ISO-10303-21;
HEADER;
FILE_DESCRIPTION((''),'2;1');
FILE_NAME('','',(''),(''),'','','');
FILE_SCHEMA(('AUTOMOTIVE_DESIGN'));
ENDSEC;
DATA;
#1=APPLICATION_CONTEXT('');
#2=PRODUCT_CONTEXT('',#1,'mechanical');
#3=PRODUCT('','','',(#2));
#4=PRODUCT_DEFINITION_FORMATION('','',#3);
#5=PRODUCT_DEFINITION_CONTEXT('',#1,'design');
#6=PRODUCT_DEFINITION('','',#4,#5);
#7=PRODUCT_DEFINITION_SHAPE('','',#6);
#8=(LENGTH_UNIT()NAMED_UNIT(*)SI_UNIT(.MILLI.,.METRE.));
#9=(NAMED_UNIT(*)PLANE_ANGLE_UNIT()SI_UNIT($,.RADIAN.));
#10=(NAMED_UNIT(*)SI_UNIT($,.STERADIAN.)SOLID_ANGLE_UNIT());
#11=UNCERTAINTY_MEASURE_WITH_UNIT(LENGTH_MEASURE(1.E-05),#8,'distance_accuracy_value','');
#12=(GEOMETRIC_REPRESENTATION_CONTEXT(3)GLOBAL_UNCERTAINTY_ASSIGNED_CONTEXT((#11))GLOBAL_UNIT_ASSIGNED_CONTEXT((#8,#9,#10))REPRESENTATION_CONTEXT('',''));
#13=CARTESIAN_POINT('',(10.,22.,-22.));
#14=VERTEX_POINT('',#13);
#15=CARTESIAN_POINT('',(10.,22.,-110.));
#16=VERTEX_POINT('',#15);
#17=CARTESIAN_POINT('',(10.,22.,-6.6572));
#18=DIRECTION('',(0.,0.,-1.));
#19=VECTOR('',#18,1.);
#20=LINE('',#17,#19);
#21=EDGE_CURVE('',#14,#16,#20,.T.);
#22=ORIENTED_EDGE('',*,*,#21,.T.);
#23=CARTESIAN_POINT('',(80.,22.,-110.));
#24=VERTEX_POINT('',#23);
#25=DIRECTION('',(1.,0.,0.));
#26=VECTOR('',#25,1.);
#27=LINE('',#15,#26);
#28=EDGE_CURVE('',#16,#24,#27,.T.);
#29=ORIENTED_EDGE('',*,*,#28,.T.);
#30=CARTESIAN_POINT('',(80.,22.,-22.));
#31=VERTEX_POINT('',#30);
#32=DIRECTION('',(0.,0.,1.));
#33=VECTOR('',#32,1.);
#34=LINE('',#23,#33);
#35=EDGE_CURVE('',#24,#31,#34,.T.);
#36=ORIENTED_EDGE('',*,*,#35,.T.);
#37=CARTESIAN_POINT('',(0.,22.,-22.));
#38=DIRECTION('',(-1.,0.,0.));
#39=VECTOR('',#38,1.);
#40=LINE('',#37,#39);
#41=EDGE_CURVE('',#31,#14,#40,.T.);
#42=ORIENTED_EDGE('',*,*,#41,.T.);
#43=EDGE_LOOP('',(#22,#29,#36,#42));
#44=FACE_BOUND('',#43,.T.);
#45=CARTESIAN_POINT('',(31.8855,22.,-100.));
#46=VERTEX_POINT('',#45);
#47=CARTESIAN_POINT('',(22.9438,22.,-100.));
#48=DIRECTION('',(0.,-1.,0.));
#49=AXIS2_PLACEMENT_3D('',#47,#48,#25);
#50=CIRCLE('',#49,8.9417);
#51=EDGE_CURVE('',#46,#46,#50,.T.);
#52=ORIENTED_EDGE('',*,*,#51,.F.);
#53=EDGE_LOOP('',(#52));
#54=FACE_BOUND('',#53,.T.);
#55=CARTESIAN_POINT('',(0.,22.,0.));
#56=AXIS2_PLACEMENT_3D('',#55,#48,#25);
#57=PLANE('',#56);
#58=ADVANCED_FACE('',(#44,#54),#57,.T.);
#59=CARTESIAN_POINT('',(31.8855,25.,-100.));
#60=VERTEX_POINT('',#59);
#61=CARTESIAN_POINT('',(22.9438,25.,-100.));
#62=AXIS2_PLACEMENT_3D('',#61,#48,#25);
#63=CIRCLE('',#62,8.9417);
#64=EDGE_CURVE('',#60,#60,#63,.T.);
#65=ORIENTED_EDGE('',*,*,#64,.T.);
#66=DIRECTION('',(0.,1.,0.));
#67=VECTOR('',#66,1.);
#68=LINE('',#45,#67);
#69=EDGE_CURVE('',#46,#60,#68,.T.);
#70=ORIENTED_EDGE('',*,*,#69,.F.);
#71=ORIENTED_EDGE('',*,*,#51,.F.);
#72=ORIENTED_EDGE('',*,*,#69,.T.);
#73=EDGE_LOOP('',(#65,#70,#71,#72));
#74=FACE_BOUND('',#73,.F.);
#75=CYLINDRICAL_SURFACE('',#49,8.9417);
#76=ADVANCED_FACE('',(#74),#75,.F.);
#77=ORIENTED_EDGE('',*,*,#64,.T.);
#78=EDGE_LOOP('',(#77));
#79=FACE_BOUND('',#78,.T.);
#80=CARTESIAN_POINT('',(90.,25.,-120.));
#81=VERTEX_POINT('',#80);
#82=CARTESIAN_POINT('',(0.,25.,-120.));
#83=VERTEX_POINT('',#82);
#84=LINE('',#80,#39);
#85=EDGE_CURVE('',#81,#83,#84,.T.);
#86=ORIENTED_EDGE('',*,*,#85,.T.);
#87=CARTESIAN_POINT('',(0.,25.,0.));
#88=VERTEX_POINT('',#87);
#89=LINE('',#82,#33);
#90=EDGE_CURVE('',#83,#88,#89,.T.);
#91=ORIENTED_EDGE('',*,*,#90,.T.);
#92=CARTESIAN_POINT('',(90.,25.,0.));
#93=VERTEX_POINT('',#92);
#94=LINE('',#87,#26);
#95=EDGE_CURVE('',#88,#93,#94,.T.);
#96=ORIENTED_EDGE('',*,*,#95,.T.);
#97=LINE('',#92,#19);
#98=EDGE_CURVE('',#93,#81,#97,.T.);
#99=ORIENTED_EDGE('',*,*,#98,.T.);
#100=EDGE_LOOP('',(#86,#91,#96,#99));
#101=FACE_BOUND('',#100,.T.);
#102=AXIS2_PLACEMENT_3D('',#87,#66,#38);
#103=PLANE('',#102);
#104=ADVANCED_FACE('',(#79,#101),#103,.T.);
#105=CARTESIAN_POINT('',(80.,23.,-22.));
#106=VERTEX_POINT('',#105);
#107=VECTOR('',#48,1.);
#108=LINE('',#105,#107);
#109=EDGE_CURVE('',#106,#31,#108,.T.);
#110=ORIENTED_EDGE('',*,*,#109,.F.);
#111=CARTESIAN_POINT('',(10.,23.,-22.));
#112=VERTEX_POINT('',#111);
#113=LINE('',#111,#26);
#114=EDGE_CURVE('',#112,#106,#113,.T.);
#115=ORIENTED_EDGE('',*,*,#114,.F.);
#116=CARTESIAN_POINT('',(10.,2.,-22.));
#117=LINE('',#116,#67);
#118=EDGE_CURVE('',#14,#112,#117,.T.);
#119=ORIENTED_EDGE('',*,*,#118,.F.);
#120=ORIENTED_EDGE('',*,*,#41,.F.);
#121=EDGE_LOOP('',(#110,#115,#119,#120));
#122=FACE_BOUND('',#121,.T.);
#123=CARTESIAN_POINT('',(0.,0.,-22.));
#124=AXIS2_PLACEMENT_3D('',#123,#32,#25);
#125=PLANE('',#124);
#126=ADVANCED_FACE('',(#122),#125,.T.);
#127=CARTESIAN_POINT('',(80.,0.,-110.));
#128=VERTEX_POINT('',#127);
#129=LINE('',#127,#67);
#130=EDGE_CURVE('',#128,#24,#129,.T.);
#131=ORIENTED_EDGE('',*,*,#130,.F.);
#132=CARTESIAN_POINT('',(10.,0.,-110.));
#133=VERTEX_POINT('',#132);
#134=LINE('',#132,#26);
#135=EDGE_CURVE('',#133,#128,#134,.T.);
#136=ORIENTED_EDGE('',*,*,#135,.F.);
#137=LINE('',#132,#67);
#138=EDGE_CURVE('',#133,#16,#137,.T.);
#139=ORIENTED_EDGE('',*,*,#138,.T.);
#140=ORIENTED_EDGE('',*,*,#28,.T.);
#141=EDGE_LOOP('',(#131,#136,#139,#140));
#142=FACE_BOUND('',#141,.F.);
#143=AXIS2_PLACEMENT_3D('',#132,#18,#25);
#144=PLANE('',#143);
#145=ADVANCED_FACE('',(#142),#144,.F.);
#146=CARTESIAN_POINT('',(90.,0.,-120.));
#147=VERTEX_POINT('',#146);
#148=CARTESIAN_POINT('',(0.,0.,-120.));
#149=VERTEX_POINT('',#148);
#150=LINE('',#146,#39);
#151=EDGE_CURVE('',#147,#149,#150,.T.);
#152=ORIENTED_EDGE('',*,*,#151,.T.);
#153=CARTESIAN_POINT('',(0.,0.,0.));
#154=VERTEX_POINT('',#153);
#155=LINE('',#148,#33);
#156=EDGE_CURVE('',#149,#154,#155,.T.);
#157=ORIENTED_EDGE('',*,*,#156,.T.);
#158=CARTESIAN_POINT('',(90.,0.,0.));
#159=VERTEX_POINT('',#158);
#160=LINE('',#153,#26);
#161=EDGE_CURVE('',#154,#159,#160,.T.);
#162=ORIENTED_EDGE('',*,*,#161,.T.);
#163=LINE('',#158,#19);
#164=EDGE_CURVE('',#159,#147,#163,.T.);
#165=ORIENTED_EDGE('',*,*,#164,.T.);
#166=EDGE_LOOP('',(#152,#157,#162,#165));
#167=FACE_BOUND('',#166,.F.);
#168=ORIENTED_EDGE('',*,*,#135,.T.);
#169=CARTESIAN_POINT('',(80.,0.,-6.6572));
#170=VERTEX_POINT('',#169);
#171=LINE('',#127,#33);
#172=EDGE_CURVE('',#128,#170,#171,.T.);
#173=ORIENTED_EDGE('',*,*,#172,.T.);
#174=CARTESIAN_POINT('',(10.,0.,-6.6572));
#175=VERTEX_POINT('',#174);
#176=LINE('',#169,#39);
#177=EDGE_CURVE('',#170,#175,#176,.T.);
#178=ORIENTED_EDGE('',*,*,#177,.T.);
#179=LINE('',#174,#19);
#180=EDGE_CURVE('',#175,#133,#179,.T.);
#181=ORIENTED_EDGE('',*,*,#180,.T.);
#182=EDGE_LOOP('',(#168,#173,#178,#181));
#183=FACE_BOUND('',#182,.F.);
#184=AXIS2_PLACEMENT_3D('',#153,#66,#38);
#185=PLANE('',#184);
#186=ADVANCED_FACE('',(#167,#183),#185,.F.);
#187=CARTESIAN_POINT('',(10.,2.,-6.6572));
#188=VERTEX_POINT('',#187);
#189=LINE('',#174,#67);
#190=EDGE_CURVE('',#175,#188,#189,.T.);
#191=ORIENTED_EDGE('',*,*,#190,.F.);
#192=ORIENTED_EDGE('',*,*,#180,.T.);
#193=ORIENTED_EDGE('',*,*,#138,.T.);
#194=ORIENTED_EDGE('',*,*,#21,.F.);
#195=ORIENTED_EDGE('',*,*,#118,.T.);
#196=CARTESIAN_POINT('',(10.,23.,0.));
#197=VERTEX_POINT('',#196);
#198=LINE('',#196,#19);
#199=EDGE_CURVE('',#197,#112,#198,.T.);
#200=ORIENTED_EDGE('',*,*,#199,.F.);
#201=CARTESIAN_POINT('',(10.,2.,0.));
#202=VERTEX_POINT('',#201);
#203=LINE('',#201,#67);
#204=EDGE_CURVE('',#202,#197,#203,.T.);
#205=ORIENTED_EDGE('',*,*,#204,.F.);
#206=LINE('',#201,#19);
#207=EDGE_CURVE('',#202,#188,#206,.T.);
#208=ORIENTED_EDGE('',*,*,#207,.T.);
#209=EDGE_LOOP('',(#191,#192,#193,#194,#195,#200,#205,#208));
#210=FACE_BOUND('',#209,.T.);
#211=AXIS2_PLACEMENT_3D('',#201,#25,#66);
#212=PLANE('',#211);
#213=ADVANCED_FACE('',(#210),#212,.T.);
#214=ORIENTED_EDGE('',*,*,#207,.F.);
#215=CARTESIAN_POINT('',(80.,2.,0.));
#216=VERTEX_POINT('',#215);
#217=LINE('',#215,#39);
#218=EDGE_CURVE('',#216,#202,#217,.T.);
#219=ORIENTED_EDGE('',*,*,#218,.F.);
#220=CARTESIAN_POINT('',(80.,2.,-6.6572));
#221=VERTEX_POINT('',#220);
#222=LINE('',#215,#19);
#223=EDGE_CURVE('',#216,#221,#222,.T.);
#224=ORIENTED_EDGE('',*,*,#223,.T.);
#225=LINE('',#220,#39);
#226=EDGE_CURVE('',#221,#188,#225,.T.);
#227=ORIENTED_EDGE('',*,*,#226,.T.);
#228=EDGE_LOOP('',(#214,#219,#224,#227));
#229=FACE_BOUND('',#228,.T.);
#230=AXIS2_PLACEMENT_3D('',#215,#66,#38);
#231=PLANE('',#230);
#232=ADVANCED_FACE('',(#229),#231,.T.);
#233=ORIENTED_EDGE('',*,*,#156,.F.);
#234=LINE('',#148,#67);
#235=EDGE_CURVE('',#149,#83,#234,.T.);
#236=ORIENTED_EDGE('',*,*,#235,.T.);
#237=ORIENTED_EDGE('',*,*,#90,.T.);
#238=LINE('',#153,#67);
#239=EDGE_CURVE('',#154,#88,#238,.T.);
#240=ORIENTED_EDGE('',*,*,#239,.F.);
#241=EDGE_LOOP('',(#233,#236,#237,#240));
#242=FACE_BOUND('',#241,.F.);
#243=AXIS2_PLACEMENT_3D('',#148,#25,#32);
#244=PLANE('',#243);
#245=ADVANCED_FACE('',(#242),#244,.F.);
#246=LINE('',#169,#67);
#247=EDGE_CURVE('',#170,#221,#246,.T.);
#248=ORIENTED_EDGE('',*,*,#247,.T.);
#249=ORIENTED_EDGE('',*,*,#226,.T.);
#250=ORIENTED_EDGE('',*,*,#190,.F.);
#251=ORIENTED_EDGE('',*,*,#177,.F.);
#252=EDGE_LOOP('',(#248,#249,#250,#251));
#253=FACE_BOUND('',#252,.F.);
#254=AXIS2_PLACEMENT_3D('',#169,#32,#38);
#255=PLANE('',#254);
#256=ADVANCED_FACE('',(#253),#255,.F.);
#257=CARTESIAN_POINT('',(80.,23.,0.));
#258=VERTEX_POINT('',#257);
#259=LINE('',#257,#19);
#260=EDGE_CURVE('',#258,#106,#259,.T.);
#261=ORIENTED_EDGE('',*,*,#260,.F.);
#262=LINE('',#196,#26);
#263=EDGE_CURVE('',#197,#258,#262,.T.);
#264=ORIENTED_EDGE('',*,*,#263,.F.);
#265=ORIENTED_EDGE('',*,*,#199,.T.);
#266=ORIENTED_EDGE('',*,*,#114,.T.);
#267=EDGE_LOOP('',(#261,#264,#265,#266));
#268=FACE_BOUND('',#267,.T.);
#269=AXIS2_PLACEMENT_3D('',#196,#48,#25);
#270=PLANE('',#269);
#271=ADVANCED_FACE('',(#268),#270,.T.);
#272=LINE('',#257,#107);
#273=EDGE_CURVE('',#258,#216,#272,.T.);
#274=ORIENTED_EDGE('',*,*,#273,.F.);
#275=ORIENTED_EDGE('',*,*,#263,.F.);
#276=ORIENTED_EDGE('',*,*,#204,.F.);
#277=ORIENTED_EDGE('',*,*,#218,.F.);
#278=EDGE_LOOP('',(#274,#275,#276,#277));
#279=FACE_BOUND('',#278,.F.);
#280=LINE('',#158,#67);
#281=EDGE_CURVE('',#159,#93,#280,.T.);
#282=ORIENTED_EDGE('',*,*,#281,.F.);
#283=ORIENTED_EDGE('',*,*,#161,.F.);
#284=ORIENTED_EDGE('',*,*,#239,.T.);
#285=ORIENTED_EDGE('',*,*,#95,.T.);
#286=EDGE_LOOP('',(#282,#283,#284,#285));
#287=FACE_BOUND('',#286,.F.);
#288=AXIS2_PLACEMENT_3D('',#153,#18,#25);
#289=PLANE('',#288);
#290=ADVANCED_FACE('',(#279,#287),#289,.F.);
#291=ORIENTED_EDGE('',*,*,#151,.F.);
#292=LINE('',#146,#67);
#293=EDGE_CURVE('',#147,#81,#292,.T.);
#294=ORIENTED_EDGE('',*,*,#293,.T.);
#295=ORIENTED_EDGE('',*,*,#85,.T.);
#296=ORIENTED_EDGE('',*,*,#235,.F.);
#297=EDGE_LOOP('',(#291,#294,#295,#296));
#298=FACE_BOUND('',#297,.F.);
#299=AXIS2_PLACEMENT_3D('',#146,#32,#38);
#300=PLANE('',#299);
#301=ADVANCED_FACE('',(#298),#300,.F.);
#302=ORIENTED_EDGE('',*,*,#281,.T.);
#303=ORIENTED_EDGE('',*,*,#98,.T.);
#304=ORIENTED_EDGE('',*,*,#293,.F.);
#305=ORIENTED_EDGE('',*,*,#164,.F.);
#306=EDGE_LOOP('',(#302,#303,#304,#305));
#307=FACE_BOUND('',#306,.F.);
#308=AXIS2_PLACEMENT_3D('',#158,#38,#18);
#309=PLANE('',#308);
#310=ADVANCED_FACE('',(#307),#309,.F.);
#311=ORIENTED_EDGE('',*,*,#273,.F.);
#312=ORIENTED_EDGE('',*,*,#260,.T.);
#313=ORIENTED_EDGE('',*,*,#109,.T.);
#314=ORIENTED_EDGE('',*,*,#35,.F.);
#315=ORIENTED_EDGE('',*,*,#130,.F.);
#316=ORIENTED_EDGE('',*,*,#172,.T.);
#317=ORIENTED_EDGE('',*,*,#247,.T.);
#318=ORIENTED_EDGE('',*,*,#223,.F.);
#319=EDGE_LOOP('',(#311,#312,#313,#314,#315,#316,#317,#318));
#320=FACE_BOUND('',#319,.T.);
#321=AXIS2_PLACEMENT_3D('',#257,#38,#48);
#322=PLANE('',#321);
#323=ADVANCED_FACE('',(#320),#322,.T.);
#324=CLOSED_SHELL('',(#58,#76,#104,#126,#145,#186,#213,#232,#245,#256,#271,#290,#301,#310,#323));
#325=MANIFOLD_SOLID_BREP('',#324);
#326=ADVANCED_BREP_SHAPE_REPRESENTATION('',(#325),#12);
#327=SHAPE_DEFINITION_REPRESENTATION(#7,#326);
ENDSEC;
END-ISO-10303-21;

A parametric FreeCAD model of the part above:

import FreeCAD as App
import Part
import Sketcher
from FreeCAD import Vector
Q = App.Units.Quantity

doc = App.newDocument("Part")
params = doc.addObject("Spreadsheet::Sheet", "Params")
for row, (alias, value) in enumerate([
    ("sketch1_width", "90 mm"),
    ("sketch1_height", "120 mm"),
    ("pad1_length", "25 mm"),
    ("sketch2_width", "70 mm"),
    ("pocket1_length", "22 mm"),
    ("pocket2_length", "22 mm"),
    ("sketch4_width", "70 mm"),
    ("sketch4_height", "21 mm"),
    ("pocket3_length", "22 mm"),
], start=1):
    params.set(f"A{row}", alias)
    params.set(f"B{row}", "=" + value)
    params.setAlias(f"B{row}", alias)

body = doc.addObject("PartDesign::Body", "Body")

sketch1 = body.newObject("Sketcher::SketchObject", "Sketch")
sketch1.AttachmentSupport = (doc.getObject("XZ_Plane"), [""])
sketch1.MapMode = "FlatFace"
sketch1.addGeometry([
    Part.LineSegment(Vector(0, -120, 0), Vector(0, 0, 0)),
    Part.LineSegment(Vector(0, 0, 0), Vector(90, 0, 0)),
    Part.LineSegment(Vector(90, 0, 0), Vector(90, -120, 0)),
    Part.LineSegment(Vector(90, -120, 0), Vector(0, -120, 0)),
], False)
sketch1.addConstraint([
    Sketcher.Constraint("Coincident", 0, 2, 1, 1),
    Sketcher.Constraint("Coincident", 1, 2, 2, 1),
    Sketcher.Constraint("Coincident", 2, 2, 3, 1),
    Sketcher.Constraint("Coincident", 3, 2, 0, 1),
    Sketcher.Constraint("Vertical", 0),
    Sketcher.Constraint("Horizontal", 1),
    Sketcher.Constraint("Vertical", 2),
    Sketcher.Constraint("Horizontal", 3),
    Sketcher.Constraint("Coincident", 0, 2, -1, 1),
    Sketcher.Constraint("DistanceX", 1, 1, 1, 2, Q("90 mm")),
    Sketcher.Constraint("DistanceY", 0, 1, 0, 2, Q("120 mm")),
])
sketch1.setExpression("Constraints[9]", "Params.sketch1_width")
sketch1.setExpression("Constraints[10]", "Params.sketch1_height")
pad1 = body.newObject("PartDesign::Pad", "Pad")
pad1.Profile = sketch1
pad1.setExpression("Length", "Params.pad1_length")
pad1.Reversed = True

sketch2 = body.newObject("Sketcher::SketchObject", "Sketch001")
sketch2.AttachmentSupport = (doc.getObject("XZ_Plane"), [""])
sketch2.MapMode = "FlatFace"
sketch2.addGeometry([
    Part.LineSegment(Vector(80, -110, 0), Vector(80, -7, 0)),
    Part.LineSegment(Vector(80, -7, 0), Vector(10, -7, 0)),
    Part.LineSegment(Vector(10, -7, 0), Vector(10, -110, 0)),
    Part.LineSegment(Vector(10, -110, 0), Vector(80, -110, 0)),
], False)
sketch2.addConstraint([
    Sketcher.Constraint("Coincident", 0, 2, 1, 1),
    Sketcher.Constraint("Coincident", 1, 2, 2, 1),
    Sketcher.Constraint("Coincident", 2, 2, 3, 1),
    Sketcher.Constraint("Coincident", 3, 2, 0, 1),
    Sketcher.Constraint("Vertical", 0),
    Sketcher.Constraint("Horizontal", 1),
    Sketcher.Constraint("Vertical", 2),
    Sketcher.Constraint("Horizontal", 3),
    Sketcher.Constraint("DistanceX", -1, 1, 1, 2, Q("10 mm")),
    Sketcher.Constraint("DistanceX", 1, 2, 1, 1, Q("70 mm")),
    Sketcher.Constraint("DistanceY", 2, 2, -1, 1, Q("110 mm")),
    Sketcher.Constraint("DistanceY", 0, 2, -1, 1, Q("6.6572 mm")),
])
sketch2.setExpression("Constraints[9]", "Params.sketch2_width")
pocket1 = body.newObject("PartDesign::Pocket", "Pocket")
pocket1.Profile = sketch2
pocket1.setExpression("Length", "Params.pocket1_length")

sketch3 = body.newObject("Sketcher::SketchObject", "Sketch002")
sketch3.AttachmentSupport = (doc.getObject("XZ_Plane"), [""])
sketch3.MapMode = "FlatFace"
sketch3.AttachmentOffset = App.Placement(Vector(0, 0, -22), App.Rotation())
sketch3.addGeometry(Part.Circle(Vector(23, -100, 0), Vector(0, 0, 1), 9), False)
sketch3.addConstraint([
    Sketcher.Constraint("Diameter", 0, Q("17.8834 mm")),
    Sketcher.Constraint("DistanceY", 0, 3, -1, 1, Q("100 mm")),
    Sketcher.Constraint("DistanceX", -1, 1, 0, 3, Q("22.9438 mm")),
])
pocket2 = body.newObject("PartDesign::Pocket", "Pocket001")
pocket2.Profile = sketch3
pocket2.setExpression("Length", "Params.pocket2_length")

sketch4 = body.newObject("Sketcher::SketchObject", "Sketch003")
sketch4.AttachmentSupport = (doc.getObject("XY_Plane"), [""])
sketch4.MapMode = "FlatFace"
sketch4.addGeometry([
    Part.LineSegment(Vector(80, 23, 0), Vector(10, 23, 0)),
    Part.LineSegment(Vector(10, 23, 0), Vector(10, 2, 0)),
    Part.LineSegment(Vector(10, 2, 0), Vector(80, 2, 0)),
    Part.LineSegment(Vector(80, 2, 0), Vector(80, 23, 0)),
], False)
sketch4.addConstraint([
    Sketcher.Constraint("Coincident", 0, 2, 1, 1),
    Sketcher.Constraint("Coincident", 1, 2, 2, 1),
    Sketcher.Constraint("Coincident", 2, 2, 3, 1),
    Sketcher.Constraint("Coincident", 3, 2, 0, 1),
    Sketcher.Constraint("Horizontal", 0),
    Sketcher.Constraint("Vertical", 1),
    Sketcher.Constraint("Horizontal", 2),
    Sketcher.Constraint("Vertical", 3),
    Sketcher.Constraint("DistanceX", -1, 1, 0, 2, Q("10 mm")),
    Sketcher.Constraint("DistanceY", -1, 1, 1, 2, Q("2 mm")),
    Sketcher.Constraint("DistanceX", 0, 2, 0, 1, Q("70 mm")),
    Sketcher.Constraint("DistanceY", 1, 2, 1, 1, Q("21 mm")),
])
sketch4.setExpression("Constraints[10]", "Params.sketch4_width")
sketch4.setExpression("Constraints[11]", "Params.sketch4_height")
pocket3 = body.newObject("PartDesign::Pocket", "Pocket002")
pocket3.Profile = sketch4
pocket3.setExpression("Length", "Params.pocket3_length")

doc.recompute()
